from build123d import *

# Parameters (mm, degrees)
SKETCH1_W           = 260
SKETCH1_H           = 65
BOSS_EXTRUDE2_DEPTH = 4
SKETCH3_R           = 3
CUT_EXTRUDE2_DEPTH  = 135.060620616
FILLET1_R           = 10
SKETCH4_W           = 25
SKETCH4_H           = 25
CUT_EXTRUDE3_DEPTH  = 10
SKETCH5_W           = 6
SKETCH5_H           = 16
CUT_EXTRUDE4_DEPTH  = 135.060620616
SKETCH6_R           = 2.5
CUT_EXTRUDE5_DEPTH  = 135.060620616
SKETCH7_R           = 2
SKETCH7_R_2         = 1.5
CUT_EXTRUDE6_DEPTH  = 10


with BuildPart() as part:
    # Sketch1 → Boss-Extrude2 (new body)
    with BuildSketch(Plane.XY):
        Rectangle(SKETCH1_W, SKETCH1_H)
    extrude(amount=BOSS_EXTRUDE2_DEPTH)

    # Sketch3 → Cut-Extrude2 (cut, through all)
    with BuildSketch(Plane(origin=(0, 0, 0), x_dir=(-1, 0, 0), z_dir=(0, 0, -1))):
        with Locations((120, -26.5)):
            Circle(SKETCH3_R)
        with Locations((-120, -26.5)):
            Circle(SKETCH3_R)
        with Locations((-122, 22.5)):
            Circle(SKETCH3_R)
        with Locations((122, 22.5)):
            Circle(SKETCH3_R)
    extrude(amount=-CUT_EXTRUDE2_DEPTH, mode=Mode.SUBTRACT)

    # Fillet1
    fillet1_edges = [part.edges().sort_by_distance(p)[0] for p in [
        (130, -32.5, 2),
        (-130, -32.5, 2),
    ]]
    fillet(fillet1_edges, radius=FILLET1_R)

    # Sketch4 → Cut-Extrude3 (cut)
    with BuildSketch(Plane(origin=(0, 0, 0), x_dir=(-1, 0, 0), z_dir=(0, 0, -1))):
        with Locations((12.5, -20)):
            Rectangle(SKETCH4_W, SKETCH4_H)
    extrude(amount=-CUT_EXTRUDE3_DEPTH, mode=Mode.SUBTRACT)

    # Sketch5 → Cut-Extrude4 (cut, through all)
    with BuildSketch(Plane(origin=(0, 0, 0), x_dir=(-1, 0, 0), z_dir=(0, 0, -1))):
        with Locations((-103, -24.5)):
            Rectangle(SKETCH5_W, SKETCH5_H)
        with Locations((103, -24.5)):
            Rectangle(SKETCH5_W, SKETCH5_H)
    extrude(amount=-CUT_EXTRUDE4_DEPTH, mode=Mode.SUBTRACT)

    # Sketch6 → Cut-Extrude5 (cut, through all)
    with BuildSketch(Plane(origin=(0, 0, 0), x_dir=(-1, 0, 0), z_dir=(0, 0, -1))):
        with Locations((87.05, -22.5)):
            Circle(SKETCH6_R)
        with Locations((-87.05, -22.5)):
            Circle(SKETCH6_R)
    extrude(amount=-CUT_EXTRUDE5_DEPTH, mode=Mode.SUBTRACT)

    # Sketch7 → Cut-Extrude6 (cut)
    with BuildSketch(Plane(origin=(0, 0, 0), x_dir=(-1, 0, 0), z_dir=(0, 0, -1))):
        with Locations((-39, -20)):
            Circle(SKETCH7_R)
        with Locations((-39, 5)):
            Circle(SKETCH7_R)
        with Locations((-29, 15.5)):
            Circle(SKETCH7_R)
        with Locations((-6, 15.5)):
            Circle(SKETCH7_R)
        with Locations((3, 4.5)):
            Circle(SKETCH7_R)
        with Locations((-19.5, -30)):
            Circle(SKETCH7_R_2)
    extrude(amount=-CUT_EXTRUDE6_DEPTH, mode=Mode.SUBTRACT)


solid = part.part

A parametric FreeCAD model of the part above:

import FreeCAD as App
import Part
import Sketcher


def edges_at(feature, points):
    """Names of the edges that pass closest to the given points."""
    edges = feature.Shape.Edges
    near = lambda p: min(range(len(edges)), key=lambda i: edges[i].distToShape(Part.Vertex(*p))[0])
    return sorted({f"Edge{near(p) + 1}" for p in points})


def add_polygon(sketch, points):
    """Adds a closed chain of lines whose ends are joined by coincident constraints."""
    first, n = sketch.GeometryCount, len(points)
    for a, b in zip(points, points[1:] + points[:1]):
        sketch.addGeometry(Part.LineSegment(App.Vector(*a, 0), App.Vector(*b, 0)), False)
    for i in range(n):
        sketch.addConstraint(Sketcher.Constraint("Coincident", first + i, 2, first + (i + 1) % n, 1))

doc = App.newDocument("Part")
params = doc.addObject("Spreadsheet::Sheet", "Params")
for row, (alias, value) in enumerate([
    ("sketch1_width", "260 mm"),
    ("sketch1_height", "65 mm"),
    ("pad1_length", "4 mm"),
    ("sketch2_diameter", "6 mm"),
    ("fillet_radius", "10 mm"),
    ("sketch3_width", "25 mm"),
    ("pocket2_length", "10 mm"),
    ("sketch4_width", "6 mm"),
    ("sketch4_height", "16 mm"),
    ("sketch5_diameter", "5 mm"),
    ("sketch6_diameter", "4 mm"),
    ("sketch6_diameter2", "3 mm"),
    ("pocket5_length", "10 mm"),
], start=1):
    params.set(f"A{row}", alias)
    params.set(f"B{row}", "=" + value)
    params.setAlias(f"B{row}", alias)

body = doc.addObject("PartDesign::Body", "Body")

sketch1 = doc.addObject("Sketcher::SketchObject", "Sketch")
body.addObject(sketch1)
sketch1.AttachmentSupport = (doc.XY_Plane, [""])
sketch1.MapMode = "FlatFace"
add_polygon(sketch1, [(-130, 32), (-130, -32), (130, -32), (130, 32)])
sketch1.addConstraint(Sketcher.Constraint("Vertical", 0))
sketch1.addConstraint(Sketcher.Constraint("Horizontal", 1))
sketch1.addConstraint(Sketcher.Constraint("Vertical", 2))
sketch1.addConstraint(Sketcher.Constraint("Horizontal", 3))
sketch1.addConstraint(Sketcher.Constraint("Symmetric", 0, 2, 2, 2, -1, 1))
sketch1.addConstraint(Sketcher.Constraint("DistanceX", 1, 1, 1, 2, 260.0))
sketch1.addConstraint(Sketcher.Constraint("DistanceY", 0, 2, 0, 1, 65.0))
sketch1.setExpression("Constraints[9]", "Params.sketch1_width")
sketch1.setExpression("Constraints[10]", "Params.sketch1_height")
pad1 = doc.addObject("PartDesign::Pad", "Pad")
body.addObject(pad1)
pad1.Profile = sketch1
pad1.setExpression("Length", "Params.pad1_length")

sketch2 = doc.addObject("Sketcher::SketchObject", "Sketch001")
body.addObject(sketch2)
sketch2.AttachmentSupport = (doc.XY_Plane, [""])
sketch2.MapMode = "FlatFace"
sketch2.addGeometry(Part.Circle(App.Vector(-120, -26.5, 0), App.Vector(0, 0, 1), 3), False)
sketch2.addGeometry(Part.Circle(App.Vector(120, -26.5, 0), App.Vector(0, 0, 1), 3), False)
sketch2.addGeometry(Part.Circle(App.Vector(122, 22.5, 0), App.Vector(0, 0, 1), 3), False)
sketch2.addGeometry(Part.Circle(App.Vector(-122, 22.5, 0), App.Vector(0, 0, 1), 3), False)
sketch2.addConstraint(Sketcher.Constraint("Equal", 0, 1))
sketch2.addConstraint(Sketcher.Constraint("Equal", 1, 2))
sketch2.addConstraint(Sketcher.Constraint("Equal", 2, 3))
sketch2.addConstraint(Sketcher.Constraint("Symmetric", 0, 3, 1, 3, -2))
sketch2.addConstraint(Sketcher.Constraint("Symmetric", 2, 3, 3, 3, -2))
sketch2.addConstraint(Sketcher.Constraint("Diameter", 0, 6.0))
sketch2.addConstraint(Sketcher.Constraint("DistanceX", 0, 3, -1, 1, 120.0))
sketch2.addConstraint(Sketcher.Constraint("DistanceX", -1, 1, 2, 3, 122.0))
sketch2.addConstraint(Sketcher.Constraint("DistanceY", 1, 3, 2, 3, 49.0))
sketch2.addConstraint(Sketcher.Constraint("DistanceY", 0, 3, -1, 1, 26.5))
sketch2.setExpression("Constraints[5]", "Params.sketch2_diameter")
pocket1 = doc.addObject("PartDesign::Pocket", "Pocket")
body.addObject(pocket1)
pocket1.Profile = sketch2
pocket1.Type = "ThroughAll"
pocket1.Reversed = True
doc.recompute()

fillet = doc.addObject("PartDesign::Fillet", "Fillet")
body.addObject(fillet)
fillet.Base = (pocket1, edges_at(pocket1, [(130, -32.5, 2), (-130, -32.5, 2)]))
fillet.setExpression("Radius", "Params.fillet_radius")

sketch3 = doc.addObject("Sketcher::SketchObject", "Sketch002")
body.addObject(sketch3)
sketch3.AttachmentSupport = (doc.XY_Plane, [""])
sketch3.MapMode = "FlatFace"
add_polygon(sketch3, [(0, -8), (0, -32), (-25, -32), (-25, -8)])
sketch3.addConstraint(Sketcher.Constraint("Vertical", 0))
sketch3.addConstraint(Sketcher.Constraint("Horizontal", 1))
sketch3.addConstraint(Sketcher.Constraint("Vertical", 2))
sketch3.addConstraint(Sketcher.Constraint("Horizontal", 3))
sketch3.addConstraint(Sketcher.Constraint("PointOnObject", 0, 2, -2))
sketch3.addConstraint(Sketcher.Constraint("Equal", 3, 0))
sketch3.addConstraint(Sketcher.Constraint("DistanceX", 1, 2, 1, 1, 25.0))
sketch3.addConstraint(Sketcher.Constraint("DistanceY", 0, 2, -1, 1, 32.5))
sketch3.setExpression("Constraints[10]", "Params.sketch3_width")
pocket2 = doc.addObject("PartDesign::Pocket", "Pocket001")
body.addObject(pocket2)
pocket2.Profile = sketch3
pocket2.setExpression("Length", "Params.pocket2_length")
pocket2.Reversed = True

sketch4 = doc.addObject("Sketcher::SketchObject", "Sketch003")
body.addObject(sketch4)
sketch4.AttachmentSupport = (doc.XY_Plane, [""])
sketch4.MapMode = "FlatFace"
add_polygon(sketch4, [(106, -16), (106, -32), (100, -32), (100, -16)])
add_polygon(sketch4, [(-100, -16), (-100, -32), (-106, -32), (-106, -16)])
sketch4.addConstraint(Sketcher.Constraint("Vertical", 0))
sketch4.addConstraint(Sketcher.Constraint("Horizontal", 1))
sketch4.addConstraint(Sketcher.Constraint("Vertical", 2))
sketch4.addConstraint(Sketcher.Constraint("Horizontal", 3))
sketch4.addConstraint(Sketcher.Constraint("Vertical", 4))
sketch4.addConstraint(Sketcher.Constraint("Horizontal", 5))
sketch4.addConstraint(Sketcher.Constraint("Vertical", 6))
sketch4.addConstraint(Sketcher.Constraint("Horizontal", 7))
sketch4.addConstraint(Sketcher.Constraint("Symmetric", 1, 2, 4, 2, -2))
sketch4.addConstraint(Sketcher.Constraint("Symmetric", 3, 2, 6, 2, -2))
sketch4.addConstraint(Sketcher.Constraint("DistanceX", 1, 2, 1, 1, 6.0))
sketch4.addConstraint(Sketcher.Constraint("DistanceY", 0, 2, 0, 1, 16.0))
sketch4.addConstraint(Sketcher.Constraint("DistanceX", -1, 1, 0, 2, 106.0))
sketch4.addConstraint(Sketcher.Constraint("DistanceY", 0, 2, -1, 1, 32.5))
sketch4.setExpression("Constraints[18]", "Params.sketch4_width")
sketch4.setExpression("Constraints[19]", "Params.sketch4_height")
pocket3 = doc.addObject("PartDesign::Pocket", "Pocket002")
body.addObject(pocket3)
pocket3.Profile = sketch4
pocket3.Type = "ThroughAll"
pocket3.Reversed = True

sketch5 = doc.addObject("Sketcher::SketchObject", "Sketch004")
body.addObject(sketch5)
sketch5.AttachmentSupport = (doc.XY_Plane, [""])
sketch5.MapMode = "FlatFace"
sketch5.addGeometry(Part.Circle(App.Vector(-87, -22.5, 0), App.Vector(0, 0, 1), 2.5), False)
sketch5.addGeometry(Part.Circle(App.Vector(87, -22.5, 0), App.Vector(0, 0, 1), 2.5), False)
sketch5.addConstraint(Sketcher.Constraint("Equal", 0, 1))
sketch5.addConstraint(Sketcher.Constraint("Symmetric", 0, 3, 1, 3, -2))
sketch5.addConstraint(Sketcher.Constraint("Diameter", 0, 5.0))
sketch5.addConstraint(Sketcher.Constraint("DistanceY", 0, 3, -1, 1, 22.5))
sketch5.addConstraint(Sketcher.Constraint("DistanceX", 0, 3, 1, 3, 174.1))
sketch5.setExpression("Constraints[2]", "Params.sketch5_diameter")
pocket4 = doc.addObject("PartDesign::Pocket", "Pocket003")
body.addObject(pocket4)
pocket4.Profile = sketch5
pocket4.Type = "ThroughAll"
pocket4.Reversed = True

sketch6 = doc.addObject("Sketcher::SketchObject", "Sketch005")
body.addObject(sketch6)
sketch6.AttachmentSupport = (doc.XY_Plane, [""])
sketch6.MapMode = "FlatFace"
sketch6.addGeometry(Part.Circle(App.Vector(39, -20, 0), App.Vector(0, 0, 1), 2), False)
sketch6.addGeometry(Part.Circle(App.Vector(39, 5, 0), App.Vector(0, 0, 1), 2), False)
sketch6.addGeometry(Part.Circle(App.Vector(29, 15.5, 0), App.Vector(0, 0, 1), 2), False)
sketch6.addGeometry(Part.Circle(App.Vector(6, 15.5, 0), App.Vector(0, 0, 1), 2), False)
sketch6.addGeometry(Part.Circle(App.Vector(-3, 4.5, 0), App.Vector(0, 0, 1), 2), False)
sketch6.addGeometry(Part.Circle(App.Vector(19.5, -30, 0), App.Vector(0, 0, 1), 1.5), False)
sketch6.addConstraint(Sketcher.Constraint("Equal", 0, 1))
sketch6.addConstraint(Sketcher.Constraint("Equal", 1, 2))
sketch6.addConstraint(Sketcher.Constraint("Equal", 2, 3))
sketch6.addConstraint(Sketcher.Constraint("Equal", 3, 4))
sketch6.addConstraint(Sketcher.Constraint("Horizontal", 2, 3, 3, 3))
sketch6.addConstraint(Sketcher.Constraint("Vertical", 0, 3, 1, 3))
sketch6.addConstraint(Sketcher.Constraint("Diameter", 0, 4.0))
sketch6.addConstraint(Sketcher.Constraint("Diameter", 5, 3.0))
sketch6.addConstraint(Sketcher.Constraint("DistanceX", -1, 1, 0, 3, 39.0))
sketch6.addConstraint(Sketcher.Constraint("DistanceY", 0, 3, -1, 1, 20.0))
sketch6.addConstraint(Sketcher.Constraint("DistanceY", -1, 1, 1, 3, 5.0))
sketch6.addConstraint(Sketcher.Constraint("DistanceX", -1, 1, 2, 3, 29.0))
sketch6.addConstraint(Sketcher.Constraint("DistanceX", -1, 1, 3, 3, 6.0))
sketch6.addConstraint(Sketcher.Constraint("DistanceX", 4, 3, -1, 1, 3.0))
sketch6.addConstraint(Sketcher.Constraint("DistanceY", 5, 3, -1, 1, 30.0))
sketch6.addConstraint(Sketcher.Constraint("DistanceY", 4, 3, 3, 3, 11.0))
sketch6.addConstraint(Sketcher.Constraint("DistanceY", -1, 1, 2, 3, 15.5))
sketch6.addConstraint(Sketcher.Constraint("DistanceX", -1, 1, 5, 3, 19.5))
sketch6.setExpression("Constraints[6]", "Params.sketch6_diameter")
sketch6.setExpression("Constraints[7]", "Params.sketch6_diameter2")
pocket5 = doc.addObject("PartDesign::Pocket", "Pocket004")
body.addObject(pocket5)
pocket5.Profile = sketch6
pocket5.setExpression("Length", "Params.pocket5_length")
pocket5.Reversed = True

doc.recompute()
